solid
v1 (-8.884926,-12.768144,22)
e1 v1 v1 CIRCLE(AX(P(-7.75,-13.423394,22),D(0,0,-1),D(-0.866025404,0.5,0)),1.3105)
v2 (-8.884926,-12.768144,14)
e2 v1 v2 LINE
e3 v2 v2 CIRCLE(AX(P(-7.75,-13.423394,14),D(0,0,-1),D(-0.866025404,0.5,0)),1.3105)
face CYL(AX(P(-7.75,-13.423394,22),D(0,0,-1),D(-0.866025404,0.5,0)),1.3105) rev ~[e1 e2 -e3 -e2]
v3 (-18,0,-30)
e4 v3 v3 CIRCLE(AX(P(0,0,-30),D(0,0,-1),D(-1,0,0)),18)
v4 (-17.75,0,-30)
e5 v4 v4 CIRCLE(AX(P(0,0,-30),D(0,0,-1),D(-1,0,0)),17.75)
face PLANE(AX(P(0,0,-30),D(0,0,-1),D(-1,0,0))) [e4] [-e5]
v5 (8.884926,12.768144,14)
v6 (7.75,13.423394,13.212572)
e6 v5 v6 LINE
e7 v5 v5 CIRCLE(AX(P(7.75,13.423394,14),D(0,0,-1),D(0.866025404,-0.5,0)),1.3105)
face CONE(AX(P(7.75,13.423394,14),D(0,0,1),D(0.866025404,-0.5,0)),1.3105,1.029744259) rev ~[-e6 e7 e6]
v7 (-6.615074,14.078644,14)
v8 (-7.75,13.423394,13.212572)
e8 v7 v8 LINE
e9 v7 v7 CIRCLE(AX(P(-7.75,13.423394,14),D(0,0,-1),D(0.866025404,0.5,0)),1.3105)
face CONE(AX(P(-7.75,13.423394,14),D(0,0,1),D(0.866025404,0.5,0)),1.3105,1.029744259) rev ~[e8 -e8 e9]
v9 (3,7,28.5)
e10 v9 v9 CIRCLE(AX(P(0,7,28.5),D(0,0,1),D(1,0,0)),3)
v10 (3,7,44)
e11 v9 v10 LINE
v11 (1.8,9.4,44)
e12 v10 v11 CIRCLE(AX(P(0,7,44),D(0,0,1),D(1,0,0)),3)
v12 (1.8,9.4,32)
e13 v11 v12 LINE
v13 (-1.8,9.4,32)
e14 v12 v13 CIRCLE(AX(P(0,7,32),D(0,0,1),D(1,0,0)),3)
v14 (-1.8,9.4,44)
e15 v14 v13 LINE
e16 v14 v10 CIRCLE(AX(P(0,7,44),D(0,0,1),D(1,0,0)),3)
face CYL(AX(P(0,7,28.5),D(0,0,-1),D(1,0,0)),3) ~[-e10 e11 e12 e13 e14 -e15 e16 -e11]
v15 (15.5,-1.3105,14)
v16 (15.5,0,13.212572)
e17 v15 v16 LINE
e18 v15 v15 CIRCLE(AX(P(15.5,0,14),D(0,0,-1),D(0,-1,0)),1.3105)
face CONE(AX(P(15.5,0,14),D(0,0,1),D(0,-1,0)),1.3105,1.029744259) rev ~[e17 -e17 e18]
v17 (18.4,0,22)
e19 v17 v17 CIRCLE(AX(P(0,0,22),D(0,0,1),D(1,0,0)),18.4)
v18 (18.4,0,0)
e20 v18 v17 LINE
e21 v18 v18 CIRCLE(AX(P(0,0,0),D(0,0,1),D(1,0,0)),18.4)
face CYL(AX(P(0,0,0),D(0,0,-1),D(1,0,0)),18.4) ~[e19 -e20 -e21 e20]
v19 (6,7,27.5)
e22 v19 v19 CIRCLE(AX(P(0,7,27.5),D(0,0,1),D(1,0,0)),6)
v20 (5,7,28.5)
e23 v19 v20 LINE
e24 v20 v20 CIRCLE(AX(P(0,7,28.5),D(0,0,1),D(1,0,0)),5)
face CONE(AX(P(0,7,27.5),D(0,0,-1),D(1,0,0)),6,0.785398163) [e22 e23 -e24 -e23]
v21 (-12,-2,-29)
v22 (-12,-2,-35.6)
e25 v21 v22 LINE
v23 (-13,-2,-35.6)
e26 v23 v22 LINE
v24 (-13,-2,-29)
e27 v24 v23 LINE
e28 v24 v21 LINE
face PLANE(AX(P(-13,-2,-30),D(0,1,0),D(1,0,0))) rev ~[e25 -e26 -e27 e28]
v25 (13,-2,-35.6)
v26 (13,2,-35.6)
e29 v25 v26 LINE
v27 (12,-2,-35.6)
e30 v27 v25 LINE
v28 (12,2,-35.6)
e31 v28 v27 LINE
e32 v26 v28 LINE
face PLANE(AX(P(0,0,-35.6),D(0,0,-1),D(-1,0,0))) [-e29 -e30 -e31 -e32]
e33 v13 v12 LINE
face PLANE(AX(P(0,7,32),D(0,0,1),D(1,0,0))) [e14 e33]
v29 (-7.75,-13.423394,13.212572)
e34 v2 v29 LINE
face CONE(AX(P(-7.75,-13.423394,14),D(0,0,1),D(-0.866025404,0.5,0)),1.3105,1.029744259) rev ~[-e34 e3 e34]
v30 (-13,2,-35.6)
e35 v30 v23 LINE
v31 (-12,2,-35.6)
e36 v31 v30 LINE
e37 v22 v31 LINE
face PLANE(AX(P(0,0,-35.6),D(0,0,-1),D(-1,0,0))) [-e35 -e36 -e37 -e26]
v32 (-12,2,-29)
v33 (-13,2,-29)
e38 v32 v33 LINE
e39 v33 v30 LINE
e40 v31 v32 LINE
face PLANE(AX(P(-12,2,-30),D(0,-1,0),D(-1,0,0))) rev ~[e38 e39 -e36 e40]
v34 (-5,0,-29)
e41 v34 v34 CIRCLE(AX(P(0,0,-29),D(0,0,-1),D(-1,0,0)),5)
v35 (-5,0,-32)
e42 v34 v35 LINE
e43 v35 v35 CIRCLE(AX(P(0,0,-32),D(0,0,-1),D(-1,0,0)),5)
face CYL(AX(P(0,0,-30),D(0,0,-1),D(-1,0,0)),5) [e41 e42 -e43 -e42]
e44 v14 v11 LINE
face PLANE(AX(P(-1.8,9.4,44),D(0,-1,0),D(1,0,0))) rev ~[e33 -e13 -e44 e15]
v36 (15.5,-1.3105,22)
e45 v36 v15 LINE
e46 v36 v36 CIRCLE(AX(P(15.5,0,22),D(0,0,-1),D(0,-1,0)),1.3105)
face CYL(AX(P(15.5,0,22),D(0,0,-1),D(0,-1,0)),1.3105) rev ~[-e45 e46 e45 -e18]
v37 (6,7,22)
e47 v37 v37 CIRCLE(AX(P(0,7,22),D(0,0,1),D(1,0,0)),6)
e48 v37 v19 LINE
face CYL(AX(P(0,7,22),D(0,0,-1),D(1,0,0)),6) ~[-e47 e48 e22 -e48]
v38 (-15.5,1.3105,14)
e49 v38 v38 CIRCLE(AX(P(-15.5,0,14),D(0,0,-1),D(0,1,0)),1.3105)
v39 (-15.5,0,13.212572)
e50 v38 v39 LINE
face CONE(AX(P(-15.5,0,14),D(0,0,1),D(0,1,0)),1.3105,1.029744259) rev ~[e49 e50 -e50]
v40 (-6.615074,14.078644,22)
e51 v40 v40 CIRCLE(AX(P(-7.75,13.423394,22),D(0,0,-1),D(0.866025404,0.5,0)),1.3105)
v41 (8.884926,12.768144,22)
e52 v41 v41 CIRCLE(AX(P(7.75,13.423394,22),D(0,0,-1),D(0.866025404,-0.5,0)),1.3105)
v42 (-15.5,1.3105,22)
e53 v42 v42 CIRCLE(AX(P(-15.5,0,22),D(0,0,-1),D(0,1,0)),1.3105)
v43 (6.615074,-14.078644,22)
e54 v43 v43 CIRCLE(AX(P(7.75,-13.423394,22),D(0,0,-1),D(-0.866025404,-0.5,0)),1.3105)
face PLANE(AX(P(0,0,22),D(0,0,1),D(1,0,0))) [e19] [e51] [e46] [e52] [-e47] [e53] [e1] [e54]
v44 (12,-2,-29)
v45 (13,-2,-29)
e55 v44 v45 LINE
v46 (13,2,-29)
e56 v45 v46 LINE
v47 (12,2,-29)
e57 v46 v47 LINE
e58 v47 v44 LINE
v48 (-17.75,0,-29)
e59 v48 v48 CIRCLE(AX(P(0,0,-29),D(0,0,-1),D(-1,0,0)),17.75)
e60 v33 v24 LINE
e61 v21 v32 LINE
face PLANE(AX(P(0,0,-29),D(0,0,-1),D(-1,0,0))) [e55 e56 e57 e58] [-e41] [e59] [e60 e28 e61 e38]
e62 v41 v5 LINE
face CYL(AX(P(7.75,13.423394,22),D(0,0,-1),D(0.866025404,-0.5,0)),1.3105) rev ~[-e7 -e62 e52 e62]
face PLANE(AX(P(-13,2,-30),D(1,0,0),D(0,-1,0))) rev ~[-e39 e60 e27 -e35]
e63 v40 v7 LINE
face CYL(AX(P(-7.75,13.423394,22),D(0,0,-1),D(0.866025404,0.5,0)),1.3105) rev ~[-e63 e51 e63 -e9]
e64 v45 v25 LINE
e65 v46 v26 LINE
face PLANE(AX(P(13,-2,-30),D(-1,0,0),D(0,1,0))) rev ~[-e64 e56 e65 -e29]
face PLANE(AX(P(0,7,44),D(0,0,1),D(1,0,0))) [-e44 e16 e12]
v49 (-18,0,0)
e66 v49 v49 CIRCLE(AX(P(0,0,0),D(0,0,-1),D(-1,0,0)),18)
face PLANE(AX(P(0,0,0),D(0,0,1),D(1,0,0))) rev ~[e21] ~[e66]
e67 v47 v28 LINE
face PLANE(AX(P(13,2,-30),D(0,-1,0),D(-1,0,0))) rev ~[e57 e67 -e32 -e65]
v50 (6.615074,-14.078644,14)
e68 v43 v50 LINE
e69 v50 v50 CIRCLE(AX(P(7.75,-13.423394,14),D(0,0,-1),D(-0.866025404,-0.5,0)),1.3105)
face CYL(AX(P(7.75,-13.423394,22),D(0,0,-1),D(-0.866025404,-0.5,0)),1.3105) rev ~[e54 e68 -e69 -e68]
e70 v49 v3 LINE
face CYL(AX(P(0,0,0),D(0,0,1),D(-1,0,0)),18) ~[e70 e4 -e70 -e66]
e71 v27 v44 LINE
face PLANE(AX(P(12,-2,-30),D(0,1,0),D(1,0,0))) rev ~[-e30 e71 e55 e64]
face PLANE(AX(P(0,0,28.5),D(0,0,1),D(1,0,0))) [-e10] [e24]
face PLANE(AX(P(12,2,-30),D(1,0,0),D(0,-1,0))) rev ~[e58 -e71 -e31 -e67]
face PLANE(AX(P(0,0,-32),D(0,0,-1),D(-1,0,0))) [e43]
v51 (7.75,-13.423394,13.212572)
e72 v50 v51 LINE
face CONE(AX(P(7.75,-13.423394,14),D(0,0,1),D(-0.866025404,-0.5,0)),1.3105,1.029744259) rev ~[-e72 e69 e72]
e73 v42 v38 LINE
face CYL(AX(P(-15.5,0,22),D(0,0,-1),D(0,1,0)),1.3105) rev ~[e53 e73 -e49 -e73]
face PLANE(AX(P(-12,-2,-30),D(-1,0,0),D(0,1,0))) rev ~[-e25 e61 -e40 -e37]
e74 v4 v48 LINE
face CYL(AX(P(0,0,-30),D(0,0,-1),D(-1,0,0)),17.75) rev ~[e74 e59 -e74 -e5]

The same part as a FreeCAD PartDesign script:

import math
import FreeCAD as App
import Part
import Sketcher
from FreeCAD import Vector
Q = App.Units.Quantity


def edges_at(feature, points):
    """Names of the edges that pass closest to the given points."""
    edges = feature.Shape.Edges
    near = lambda p: min(range(len(edges)), key=lambda i: edges[i].distToShape(Part.Vertex(*p))[0])
    return sorted({f"Edge{near(p) + 1}" for p in points})

doc = App.newDocument("Part")
body = doc.addObject("PartDesign::Body", "Body")

# Sketch on XY plane
sketch1 = body.newObject("Sketcher::SketchObject", "Sketch")
sketch1.AttachmentSupport = (doc.getObject("XY_Plane"), [""])
sketch1.MapMode = "FlatFace"
sketch1.addGeometry(Part.Circle(Vector(0, 0, 0), Vector(0, 0, 1), 18.4), False)
sketch1.addConstraint([
    Sketcher.Constraint("Coincident", 0, 3, -1, 1),
    Sketcher.Constraint("Diameter", 0, Q("36.8 mm")),
])
pad1 = body.newObject("PartDesign::Pad", "Pad")
pad1.Profile = sketch1
pad1.Length = 22

# Sketch on XY plane
sketch2 = body.newObject("Sketcher::SketchObject", "Sketch001")
sketch2.AttachmentSupport = (doc.getObject("XY_Plane"), [""])
sketch2.MapMode = "FlatFace"
sketch2.addGeometry(Part.Circle(Vector(0, 0, 0), Vector(0, 0, 1), 18), False)
sketch2.addConstraint([
    Sketcher.Constraint("Coincident", 0, 3, -1, 1),
    Sketcher.Constraint("Diameter", 0, Q("36 mm")),
])
pad2 = body.newObject("PartDesign::Pad", "Pad001")
pad2.Profile = sketch2
pad2.Length = 30
pad2.Reversed = True

# Sketch on XY plane
sketch3 = body.newObject("Sketcher::SketchObject", "Sketch002")
sketch3.AttachmentSupport = (doc.getObject("XY_Plane"), [""])
sketch3.MapMode = "FlatFace"
sketch3.AttachmentOffset = App.Placement(Vector(0, 0, -30), App.Rotation())
sketch3.addGeometry([
    Part.LineSegment(Vector(13, -2, 0), Vector(12, -2, 0)),  # 0
    Part.LineSegment(Vector(12, -2, 0), Vector(12, 2, 0)),  # 1
    Part.LineSegment(Vector(12, 2, 0), Vector(13, 2, 0)),  # 2
    Part.LineSegment(Vector(13, 2, 0), Vector(13, -2, 0)),  # 3
    Part.LineSegment(Vector(-13, 2, 0), Vector(-12, 2, 0)),  # 4
    Part.LineSegment(Vector(-12, 2, 0), Vector(-12, -2, 0)),  # 5
    Part.LineSegment(Vector(-12, -2, 0), Vector(-13, -2, 0)),  # 6
    Part.LineSegment(Vector(-13, -2, 0), Vector(-13, 2, 0)),  # 7
], False)
sketch3.addConstraint([
    Sketcher.Constraint("Coincident", 0, 2, 1, 1),
    Sketcher.Constraint("Coincident", 1, 2, 2, 1),
    Sketcher.Constraint("Coincident", 2, 2, 3, 1),
    Sketcher.Constraint("Coincident", 3, 2, 0, 1),
    Sketcher.Constraint("Coincident", 4, 2, 5, 1),
    Sketcher.Constraint("Coincident", 5, 2, 6, 1),
    Sketcher.Constraint("Coincident", 6, 2, 7, 1),
    Sketcher.Constraint("Coincident", 7, 2, 4, 1),
    Sketcher.Constraint("Horizontal", 0),
    Sketcher.Constraint("Vertical", 1),
    Sketcher.Constraint("Horizontal", 2),
    Sketcher.Constraint("Vertical", 3),
    Sketcher.Constraint("Horizontal", 4),
    Sketcher.Constraint("Vertical", 5),
    Sketcher.Constraint("Horizontal", 6),
    Sketcher.Constraint("Vertical", 7),
    Sketcher.Constraint("Symmetric", 0, 2, 4, 2, -1, 1),
    Sketcher.Constraint("Symmetric", 2, 2, 6, 2, -1, 1),
    Sketcher.Constraint("Horizontal", 2, 2, 4, 2),
    Sketcher.Constraint("DistanceX", 0, 2, 0, 1, Q("1 mm")),
    Sketcher.Constraint("DistanceY", 1, 1, 1, 2, Q("4 mm")),
    Sketcher.Constraint("DistanceX", -1, 1, 0, 2, Q("12 mm")),
])
pad3 = body.newObject("PartDesign::Pad", "Pad002")
pad3.Profile = sketch3
pad3.Length = 5.6
pad3.Reversed = True

# Sketch on XY plane
sketch4 = body.newObject("Sketcher::SketchObject", "Sketch003")
sketch4.AttachmentSupport = (doc.getObject("XY_Plane"), [""])
sketch4.MapMode = "FlatFace"
sketch4.AttachmentOffset = App.Placement(Vector(0, 0, -30), App.Rotation())
sketch4.addGeometry(Part.Circle(Vector(0, 0, 0), Vector(0, 0, 1), 5), False)
sketch4.addConstraint([
    Sketcher.Constraint("Coincident", 0, 3, -1, 1),
    Sketcher.Constraint("Diameter", 0, Q("10 mm")),
])
pad4 = body.newObject("PartDesign::Pad", "Pad003")
pad4.Profile = sketch4
pad4.Length = 2
pad4.Reversed = True

# Sketch on XY plane
sketch5 = body.newObject("Sketcher::SketchObject", "Sketch004")
sketch5.AttachmentSupport = (doc.getObject("XY_Plane"), [""])
sketch5.MapMode = "FlatFace"
sketch5.AttachmentOffset = App.Placement(Vector(0, 0, -30), App.Rotation())
sketch5.addGeometry([
    Part.Circle(Vector(0, 0, 0), Vector(0, 0, 1), 17.75),  # 0
    Part.LineSegment(Vector(12, 2, 0), Vector(12, -2, 0)),  # 1
    Part.LineSegment(Vector(12, -2, 0), Vector(13, -2, 0)),  # 2
    Part.LineSegment(Vector(13, -2, 0), Vector(13, 2, 0)),  # 3
    Part.LineSegment(Vector(13, 2, 0), Vector(12, 2, 0)),  # 4
    Part.Circle(Vector(0, 0, 0), Vector(0, 0, 1), 5),  # 5
    Part.LineSegment(Vector(-12, -2, 0), Vector(-12, 2, 0)),  # 6
    Part.LineSegment(Vector(-12, 2, 0), Vector(-13, 2, 0)),  # 7
    Part.LineSegment(Vector(-13, 2, 0), Vector(-13, -2, 0)),  # 8
    Part.LineSegment(Vector(-13, -2, 0), Vector(-12, -2, 0)),  # 9
], False)
sketch5.addConstraint([
    Sketcher.Constraint("Coincident", 1, 2, 2, 1),
    Sketcher.Constraint("Coincident", 2, 2, 3, 1),
    Sketcher.Constraint("Coincident", 3, 2, 4, 1),
    Sketcher.Constraint("Coincident", 4, 2, 1, 1),
    Sketcher.Constraint("Coincident", 6, 2, 7, 1),
    Sketcher.Constraint("Coincident", 7, 2, 8, 1),
    Sketcher.Constraint("Coincident", 8, 2, 9, 1),
    Sketcher.Constraint("Coincident", 9, 2, 6, 1),
    Sketcher.Constraint("Vertical", 1),
    Sketcher.Constraint("Horizontal", 2),
    Sketcher.Constraint("Vertical", 3),
    Sketcher.Constraint("Horizontal", 4),
    Sketcher.Constraint("Vertical", 6),
    Sketcher.Constraint("Horizontal", 7),
    Sketcher.Constraint("Vertical", 8),
    Sketcher.Constraint("Horizontal", 9),
    Sketcher.Constraint("Coincident", 0, 3, -1, 1),
    Sketcher.Constraint("Coincident", 5, 3, -1, 1),
    Sketcher.Constraint("Symmetric", 1, 2, 6, 2, -1, 1),
    Sketcher.Constraint("Symmetric", 3, 2, 8, 2, -1, 1),
    Sketcher.Constraint("Horizontal", 4, 2, 6, 2),
    Sketcher.Constraint("Diameter", 5, Q("10 mm")),
    Sketcher.Constraint("Diameter", 0, Q("35.5 mm")),
    Sketcher.Constraint("DistanceX", 2, 1, 2, 2, Q("1 mm")),
    Sketcher.Constraint("DistanceY", 1, 2, 1, 1, Q("4 mm")),
    Sketcher.Constraint("DistanceX", -1, 1, 1, 2, Q("12 mm")),
])
pocket1 = body.newObject("PartDesign::Pocket", "Pocket")
pocket1.Profile = sketch5
pocket1.Length = 1
pocket1.Reversed = True

# Sketch on XY plane
sketch6 = body.newObject("Sketcher::SketchObject", "Sketch005")
sketch6.AttachmentSupport = (doc.getObject("XY_Plane"), [""])
sketch6.MapMode = "FlatFace"
sketch6.AttachmentOffset = App.Placement(Vector(0, 0, 22), App.Rotation())
sketch6.addGeometry(Part.Circle(Vector(0, 7, 0), Vector(0, 0, 1), 6), False)
sketch6.addConstraint([
    Sketcher.Constraint("PointOnObject", 0, 3, -2),
    Sketcher.Constraint("Diameter", 0, Q("12 mm")),
    Sketcher.Constraint("DistanceY", -1, 1, 0, 3, Q("7 mm")),
])
pad5 = body.newObject("PartDesign::Pad", "Pad004")
pad5.Profile = sketch6
pad5.Length = 6.5

# Sketch on XY plane
sketch7 = body.newObject("Sketcher::SketchObject", "Sketch006")
sketch7.AttachmentSupport = (doc.getObject("XY_Plane"), [""])
sketch7.MapMode = "FlatFace"
sketch7.AttachmentOffset = App.Placement(Vector(0, 0, 22), App.Rotation())
sketch7.addGeometry(Part.Circle(Vector(15.5, 0, 0), Vector(0, 0, 1), 1.3105), False)
sketch7.addConstraint([
    Sketcher.Constraint("PointOnObject", 0, 3, -1),
    Sketcher.Constraint("Diameter", 0, Q("2.621 mm")),
    Sketcher.Constraint("DistanceX", -1, 1, 0, 3, Q("15.5 mm")),
])
doc.recompute()
hole = body.newObject("PartDesign::Hole", "Hole")
hole.Profile = sketch7
hole.ThreadType = "None"
hole.Diameter = 2.621
hole.DepthType = "Dimension"
hole.Depth = 8
hole.DrillPoint = "Angled"
hole.DrillPointAngle = 118
doc.recompute()

polarpattern = body.newObject("PartDesign::PolarPattern", "PolarPattern")
polarpattern.Originals = [hole]
polarpattern.Axis = (doc.getObject("Z_Axis"), [""])
polarpattern.Angle = 360
polarpattern.Occurrences = 6
body.Tip = polarpattern
doc.recompute()

chamfer = body.newObject("PartDesign::Chamfer", "Chamfer")
chamfer.Base = (polarpattern, edges_at(polarpattern, [(-6, 7, 28.5)]))
chamfer.Size = 1

# Sketch on XY plane
sketch8 = body.newObject("Sketcher::SketchObject", "Sketch007")
sketch8.AttachmentSupport = (doc.getObject("XY_Plane"), [""])
sketch8.MapMode = "FlatFace"
sketch8.AttachmentOffset = App.Placement(Vector(0, 0, 28.5), App.Rotation())
sketch8.addGeometry(Part.Circle(Vector(0, 7, 0), Vector(0, 0, 1), 3), False)
sketch8.addConstraint([
    Sketcher.Constraint("PointOnObject", 0, 3, -2),
    Sketcher.Constraint("Diameter", 0, Q("6 mm")),
    Sketcher.Constraint("DistanceY", -1, 1, 0, 3, Q("7 mm")),
])
pad6 = body.newObject("PartDesign::Pad", "Pad005")
pad6.Profile = sketch8
pad6.Length = 15.5

# Sketch on XY plane
sketch9 = body.newObject("Sketcher::SketchObject", "Sketch008")
sketch9.AttachmentSupport = (doc.getObject("XY_Plane"), [""])
sketch9.MapMode = "FlatFace"
sketch9.AttachmentOffset = App.Placement(Vector(0, 0, 44), App.Rotation())
sketch9.addGeometry([
    Part.LineSegment(Vector(-1.8, 9.4, 0), Vector(1.8, 9.4, 0)),
    Part.ArcOfCircle(Part.Circle(Vector(0, 7, 0), Vector(0, 0, 1), 3), math.radians(53.130102), math.radians(126.869898)),
], False)
sketch9.addConstraint([
    Sketcher.Constraint("Coincident", 0, 1, 1, 2),
    Sketcher.Constraint("Coincident", 1, 1, 0, 2),
    Sketcher.Constraint("Horizontal", 0),
    Sketcher.Constraint("PointOnObject", 1, 3, -2),
    Sketcher.Constraint("Radius", 1, Q("3 mm")),
    Sketcher.Constraint("DistanceX", 0, 1, 0, 2, Q("3.6 mm")),
    Sketcher.Constraint("DistanceY", -1, 1, 1, 3, Q("7 mm")),
])
pocket2 = body.newObject("PartDesign::Pocket", "Pocket001")
pocket2.Profile = sketch9
pocket2.Length = 12

doc.recompute()
